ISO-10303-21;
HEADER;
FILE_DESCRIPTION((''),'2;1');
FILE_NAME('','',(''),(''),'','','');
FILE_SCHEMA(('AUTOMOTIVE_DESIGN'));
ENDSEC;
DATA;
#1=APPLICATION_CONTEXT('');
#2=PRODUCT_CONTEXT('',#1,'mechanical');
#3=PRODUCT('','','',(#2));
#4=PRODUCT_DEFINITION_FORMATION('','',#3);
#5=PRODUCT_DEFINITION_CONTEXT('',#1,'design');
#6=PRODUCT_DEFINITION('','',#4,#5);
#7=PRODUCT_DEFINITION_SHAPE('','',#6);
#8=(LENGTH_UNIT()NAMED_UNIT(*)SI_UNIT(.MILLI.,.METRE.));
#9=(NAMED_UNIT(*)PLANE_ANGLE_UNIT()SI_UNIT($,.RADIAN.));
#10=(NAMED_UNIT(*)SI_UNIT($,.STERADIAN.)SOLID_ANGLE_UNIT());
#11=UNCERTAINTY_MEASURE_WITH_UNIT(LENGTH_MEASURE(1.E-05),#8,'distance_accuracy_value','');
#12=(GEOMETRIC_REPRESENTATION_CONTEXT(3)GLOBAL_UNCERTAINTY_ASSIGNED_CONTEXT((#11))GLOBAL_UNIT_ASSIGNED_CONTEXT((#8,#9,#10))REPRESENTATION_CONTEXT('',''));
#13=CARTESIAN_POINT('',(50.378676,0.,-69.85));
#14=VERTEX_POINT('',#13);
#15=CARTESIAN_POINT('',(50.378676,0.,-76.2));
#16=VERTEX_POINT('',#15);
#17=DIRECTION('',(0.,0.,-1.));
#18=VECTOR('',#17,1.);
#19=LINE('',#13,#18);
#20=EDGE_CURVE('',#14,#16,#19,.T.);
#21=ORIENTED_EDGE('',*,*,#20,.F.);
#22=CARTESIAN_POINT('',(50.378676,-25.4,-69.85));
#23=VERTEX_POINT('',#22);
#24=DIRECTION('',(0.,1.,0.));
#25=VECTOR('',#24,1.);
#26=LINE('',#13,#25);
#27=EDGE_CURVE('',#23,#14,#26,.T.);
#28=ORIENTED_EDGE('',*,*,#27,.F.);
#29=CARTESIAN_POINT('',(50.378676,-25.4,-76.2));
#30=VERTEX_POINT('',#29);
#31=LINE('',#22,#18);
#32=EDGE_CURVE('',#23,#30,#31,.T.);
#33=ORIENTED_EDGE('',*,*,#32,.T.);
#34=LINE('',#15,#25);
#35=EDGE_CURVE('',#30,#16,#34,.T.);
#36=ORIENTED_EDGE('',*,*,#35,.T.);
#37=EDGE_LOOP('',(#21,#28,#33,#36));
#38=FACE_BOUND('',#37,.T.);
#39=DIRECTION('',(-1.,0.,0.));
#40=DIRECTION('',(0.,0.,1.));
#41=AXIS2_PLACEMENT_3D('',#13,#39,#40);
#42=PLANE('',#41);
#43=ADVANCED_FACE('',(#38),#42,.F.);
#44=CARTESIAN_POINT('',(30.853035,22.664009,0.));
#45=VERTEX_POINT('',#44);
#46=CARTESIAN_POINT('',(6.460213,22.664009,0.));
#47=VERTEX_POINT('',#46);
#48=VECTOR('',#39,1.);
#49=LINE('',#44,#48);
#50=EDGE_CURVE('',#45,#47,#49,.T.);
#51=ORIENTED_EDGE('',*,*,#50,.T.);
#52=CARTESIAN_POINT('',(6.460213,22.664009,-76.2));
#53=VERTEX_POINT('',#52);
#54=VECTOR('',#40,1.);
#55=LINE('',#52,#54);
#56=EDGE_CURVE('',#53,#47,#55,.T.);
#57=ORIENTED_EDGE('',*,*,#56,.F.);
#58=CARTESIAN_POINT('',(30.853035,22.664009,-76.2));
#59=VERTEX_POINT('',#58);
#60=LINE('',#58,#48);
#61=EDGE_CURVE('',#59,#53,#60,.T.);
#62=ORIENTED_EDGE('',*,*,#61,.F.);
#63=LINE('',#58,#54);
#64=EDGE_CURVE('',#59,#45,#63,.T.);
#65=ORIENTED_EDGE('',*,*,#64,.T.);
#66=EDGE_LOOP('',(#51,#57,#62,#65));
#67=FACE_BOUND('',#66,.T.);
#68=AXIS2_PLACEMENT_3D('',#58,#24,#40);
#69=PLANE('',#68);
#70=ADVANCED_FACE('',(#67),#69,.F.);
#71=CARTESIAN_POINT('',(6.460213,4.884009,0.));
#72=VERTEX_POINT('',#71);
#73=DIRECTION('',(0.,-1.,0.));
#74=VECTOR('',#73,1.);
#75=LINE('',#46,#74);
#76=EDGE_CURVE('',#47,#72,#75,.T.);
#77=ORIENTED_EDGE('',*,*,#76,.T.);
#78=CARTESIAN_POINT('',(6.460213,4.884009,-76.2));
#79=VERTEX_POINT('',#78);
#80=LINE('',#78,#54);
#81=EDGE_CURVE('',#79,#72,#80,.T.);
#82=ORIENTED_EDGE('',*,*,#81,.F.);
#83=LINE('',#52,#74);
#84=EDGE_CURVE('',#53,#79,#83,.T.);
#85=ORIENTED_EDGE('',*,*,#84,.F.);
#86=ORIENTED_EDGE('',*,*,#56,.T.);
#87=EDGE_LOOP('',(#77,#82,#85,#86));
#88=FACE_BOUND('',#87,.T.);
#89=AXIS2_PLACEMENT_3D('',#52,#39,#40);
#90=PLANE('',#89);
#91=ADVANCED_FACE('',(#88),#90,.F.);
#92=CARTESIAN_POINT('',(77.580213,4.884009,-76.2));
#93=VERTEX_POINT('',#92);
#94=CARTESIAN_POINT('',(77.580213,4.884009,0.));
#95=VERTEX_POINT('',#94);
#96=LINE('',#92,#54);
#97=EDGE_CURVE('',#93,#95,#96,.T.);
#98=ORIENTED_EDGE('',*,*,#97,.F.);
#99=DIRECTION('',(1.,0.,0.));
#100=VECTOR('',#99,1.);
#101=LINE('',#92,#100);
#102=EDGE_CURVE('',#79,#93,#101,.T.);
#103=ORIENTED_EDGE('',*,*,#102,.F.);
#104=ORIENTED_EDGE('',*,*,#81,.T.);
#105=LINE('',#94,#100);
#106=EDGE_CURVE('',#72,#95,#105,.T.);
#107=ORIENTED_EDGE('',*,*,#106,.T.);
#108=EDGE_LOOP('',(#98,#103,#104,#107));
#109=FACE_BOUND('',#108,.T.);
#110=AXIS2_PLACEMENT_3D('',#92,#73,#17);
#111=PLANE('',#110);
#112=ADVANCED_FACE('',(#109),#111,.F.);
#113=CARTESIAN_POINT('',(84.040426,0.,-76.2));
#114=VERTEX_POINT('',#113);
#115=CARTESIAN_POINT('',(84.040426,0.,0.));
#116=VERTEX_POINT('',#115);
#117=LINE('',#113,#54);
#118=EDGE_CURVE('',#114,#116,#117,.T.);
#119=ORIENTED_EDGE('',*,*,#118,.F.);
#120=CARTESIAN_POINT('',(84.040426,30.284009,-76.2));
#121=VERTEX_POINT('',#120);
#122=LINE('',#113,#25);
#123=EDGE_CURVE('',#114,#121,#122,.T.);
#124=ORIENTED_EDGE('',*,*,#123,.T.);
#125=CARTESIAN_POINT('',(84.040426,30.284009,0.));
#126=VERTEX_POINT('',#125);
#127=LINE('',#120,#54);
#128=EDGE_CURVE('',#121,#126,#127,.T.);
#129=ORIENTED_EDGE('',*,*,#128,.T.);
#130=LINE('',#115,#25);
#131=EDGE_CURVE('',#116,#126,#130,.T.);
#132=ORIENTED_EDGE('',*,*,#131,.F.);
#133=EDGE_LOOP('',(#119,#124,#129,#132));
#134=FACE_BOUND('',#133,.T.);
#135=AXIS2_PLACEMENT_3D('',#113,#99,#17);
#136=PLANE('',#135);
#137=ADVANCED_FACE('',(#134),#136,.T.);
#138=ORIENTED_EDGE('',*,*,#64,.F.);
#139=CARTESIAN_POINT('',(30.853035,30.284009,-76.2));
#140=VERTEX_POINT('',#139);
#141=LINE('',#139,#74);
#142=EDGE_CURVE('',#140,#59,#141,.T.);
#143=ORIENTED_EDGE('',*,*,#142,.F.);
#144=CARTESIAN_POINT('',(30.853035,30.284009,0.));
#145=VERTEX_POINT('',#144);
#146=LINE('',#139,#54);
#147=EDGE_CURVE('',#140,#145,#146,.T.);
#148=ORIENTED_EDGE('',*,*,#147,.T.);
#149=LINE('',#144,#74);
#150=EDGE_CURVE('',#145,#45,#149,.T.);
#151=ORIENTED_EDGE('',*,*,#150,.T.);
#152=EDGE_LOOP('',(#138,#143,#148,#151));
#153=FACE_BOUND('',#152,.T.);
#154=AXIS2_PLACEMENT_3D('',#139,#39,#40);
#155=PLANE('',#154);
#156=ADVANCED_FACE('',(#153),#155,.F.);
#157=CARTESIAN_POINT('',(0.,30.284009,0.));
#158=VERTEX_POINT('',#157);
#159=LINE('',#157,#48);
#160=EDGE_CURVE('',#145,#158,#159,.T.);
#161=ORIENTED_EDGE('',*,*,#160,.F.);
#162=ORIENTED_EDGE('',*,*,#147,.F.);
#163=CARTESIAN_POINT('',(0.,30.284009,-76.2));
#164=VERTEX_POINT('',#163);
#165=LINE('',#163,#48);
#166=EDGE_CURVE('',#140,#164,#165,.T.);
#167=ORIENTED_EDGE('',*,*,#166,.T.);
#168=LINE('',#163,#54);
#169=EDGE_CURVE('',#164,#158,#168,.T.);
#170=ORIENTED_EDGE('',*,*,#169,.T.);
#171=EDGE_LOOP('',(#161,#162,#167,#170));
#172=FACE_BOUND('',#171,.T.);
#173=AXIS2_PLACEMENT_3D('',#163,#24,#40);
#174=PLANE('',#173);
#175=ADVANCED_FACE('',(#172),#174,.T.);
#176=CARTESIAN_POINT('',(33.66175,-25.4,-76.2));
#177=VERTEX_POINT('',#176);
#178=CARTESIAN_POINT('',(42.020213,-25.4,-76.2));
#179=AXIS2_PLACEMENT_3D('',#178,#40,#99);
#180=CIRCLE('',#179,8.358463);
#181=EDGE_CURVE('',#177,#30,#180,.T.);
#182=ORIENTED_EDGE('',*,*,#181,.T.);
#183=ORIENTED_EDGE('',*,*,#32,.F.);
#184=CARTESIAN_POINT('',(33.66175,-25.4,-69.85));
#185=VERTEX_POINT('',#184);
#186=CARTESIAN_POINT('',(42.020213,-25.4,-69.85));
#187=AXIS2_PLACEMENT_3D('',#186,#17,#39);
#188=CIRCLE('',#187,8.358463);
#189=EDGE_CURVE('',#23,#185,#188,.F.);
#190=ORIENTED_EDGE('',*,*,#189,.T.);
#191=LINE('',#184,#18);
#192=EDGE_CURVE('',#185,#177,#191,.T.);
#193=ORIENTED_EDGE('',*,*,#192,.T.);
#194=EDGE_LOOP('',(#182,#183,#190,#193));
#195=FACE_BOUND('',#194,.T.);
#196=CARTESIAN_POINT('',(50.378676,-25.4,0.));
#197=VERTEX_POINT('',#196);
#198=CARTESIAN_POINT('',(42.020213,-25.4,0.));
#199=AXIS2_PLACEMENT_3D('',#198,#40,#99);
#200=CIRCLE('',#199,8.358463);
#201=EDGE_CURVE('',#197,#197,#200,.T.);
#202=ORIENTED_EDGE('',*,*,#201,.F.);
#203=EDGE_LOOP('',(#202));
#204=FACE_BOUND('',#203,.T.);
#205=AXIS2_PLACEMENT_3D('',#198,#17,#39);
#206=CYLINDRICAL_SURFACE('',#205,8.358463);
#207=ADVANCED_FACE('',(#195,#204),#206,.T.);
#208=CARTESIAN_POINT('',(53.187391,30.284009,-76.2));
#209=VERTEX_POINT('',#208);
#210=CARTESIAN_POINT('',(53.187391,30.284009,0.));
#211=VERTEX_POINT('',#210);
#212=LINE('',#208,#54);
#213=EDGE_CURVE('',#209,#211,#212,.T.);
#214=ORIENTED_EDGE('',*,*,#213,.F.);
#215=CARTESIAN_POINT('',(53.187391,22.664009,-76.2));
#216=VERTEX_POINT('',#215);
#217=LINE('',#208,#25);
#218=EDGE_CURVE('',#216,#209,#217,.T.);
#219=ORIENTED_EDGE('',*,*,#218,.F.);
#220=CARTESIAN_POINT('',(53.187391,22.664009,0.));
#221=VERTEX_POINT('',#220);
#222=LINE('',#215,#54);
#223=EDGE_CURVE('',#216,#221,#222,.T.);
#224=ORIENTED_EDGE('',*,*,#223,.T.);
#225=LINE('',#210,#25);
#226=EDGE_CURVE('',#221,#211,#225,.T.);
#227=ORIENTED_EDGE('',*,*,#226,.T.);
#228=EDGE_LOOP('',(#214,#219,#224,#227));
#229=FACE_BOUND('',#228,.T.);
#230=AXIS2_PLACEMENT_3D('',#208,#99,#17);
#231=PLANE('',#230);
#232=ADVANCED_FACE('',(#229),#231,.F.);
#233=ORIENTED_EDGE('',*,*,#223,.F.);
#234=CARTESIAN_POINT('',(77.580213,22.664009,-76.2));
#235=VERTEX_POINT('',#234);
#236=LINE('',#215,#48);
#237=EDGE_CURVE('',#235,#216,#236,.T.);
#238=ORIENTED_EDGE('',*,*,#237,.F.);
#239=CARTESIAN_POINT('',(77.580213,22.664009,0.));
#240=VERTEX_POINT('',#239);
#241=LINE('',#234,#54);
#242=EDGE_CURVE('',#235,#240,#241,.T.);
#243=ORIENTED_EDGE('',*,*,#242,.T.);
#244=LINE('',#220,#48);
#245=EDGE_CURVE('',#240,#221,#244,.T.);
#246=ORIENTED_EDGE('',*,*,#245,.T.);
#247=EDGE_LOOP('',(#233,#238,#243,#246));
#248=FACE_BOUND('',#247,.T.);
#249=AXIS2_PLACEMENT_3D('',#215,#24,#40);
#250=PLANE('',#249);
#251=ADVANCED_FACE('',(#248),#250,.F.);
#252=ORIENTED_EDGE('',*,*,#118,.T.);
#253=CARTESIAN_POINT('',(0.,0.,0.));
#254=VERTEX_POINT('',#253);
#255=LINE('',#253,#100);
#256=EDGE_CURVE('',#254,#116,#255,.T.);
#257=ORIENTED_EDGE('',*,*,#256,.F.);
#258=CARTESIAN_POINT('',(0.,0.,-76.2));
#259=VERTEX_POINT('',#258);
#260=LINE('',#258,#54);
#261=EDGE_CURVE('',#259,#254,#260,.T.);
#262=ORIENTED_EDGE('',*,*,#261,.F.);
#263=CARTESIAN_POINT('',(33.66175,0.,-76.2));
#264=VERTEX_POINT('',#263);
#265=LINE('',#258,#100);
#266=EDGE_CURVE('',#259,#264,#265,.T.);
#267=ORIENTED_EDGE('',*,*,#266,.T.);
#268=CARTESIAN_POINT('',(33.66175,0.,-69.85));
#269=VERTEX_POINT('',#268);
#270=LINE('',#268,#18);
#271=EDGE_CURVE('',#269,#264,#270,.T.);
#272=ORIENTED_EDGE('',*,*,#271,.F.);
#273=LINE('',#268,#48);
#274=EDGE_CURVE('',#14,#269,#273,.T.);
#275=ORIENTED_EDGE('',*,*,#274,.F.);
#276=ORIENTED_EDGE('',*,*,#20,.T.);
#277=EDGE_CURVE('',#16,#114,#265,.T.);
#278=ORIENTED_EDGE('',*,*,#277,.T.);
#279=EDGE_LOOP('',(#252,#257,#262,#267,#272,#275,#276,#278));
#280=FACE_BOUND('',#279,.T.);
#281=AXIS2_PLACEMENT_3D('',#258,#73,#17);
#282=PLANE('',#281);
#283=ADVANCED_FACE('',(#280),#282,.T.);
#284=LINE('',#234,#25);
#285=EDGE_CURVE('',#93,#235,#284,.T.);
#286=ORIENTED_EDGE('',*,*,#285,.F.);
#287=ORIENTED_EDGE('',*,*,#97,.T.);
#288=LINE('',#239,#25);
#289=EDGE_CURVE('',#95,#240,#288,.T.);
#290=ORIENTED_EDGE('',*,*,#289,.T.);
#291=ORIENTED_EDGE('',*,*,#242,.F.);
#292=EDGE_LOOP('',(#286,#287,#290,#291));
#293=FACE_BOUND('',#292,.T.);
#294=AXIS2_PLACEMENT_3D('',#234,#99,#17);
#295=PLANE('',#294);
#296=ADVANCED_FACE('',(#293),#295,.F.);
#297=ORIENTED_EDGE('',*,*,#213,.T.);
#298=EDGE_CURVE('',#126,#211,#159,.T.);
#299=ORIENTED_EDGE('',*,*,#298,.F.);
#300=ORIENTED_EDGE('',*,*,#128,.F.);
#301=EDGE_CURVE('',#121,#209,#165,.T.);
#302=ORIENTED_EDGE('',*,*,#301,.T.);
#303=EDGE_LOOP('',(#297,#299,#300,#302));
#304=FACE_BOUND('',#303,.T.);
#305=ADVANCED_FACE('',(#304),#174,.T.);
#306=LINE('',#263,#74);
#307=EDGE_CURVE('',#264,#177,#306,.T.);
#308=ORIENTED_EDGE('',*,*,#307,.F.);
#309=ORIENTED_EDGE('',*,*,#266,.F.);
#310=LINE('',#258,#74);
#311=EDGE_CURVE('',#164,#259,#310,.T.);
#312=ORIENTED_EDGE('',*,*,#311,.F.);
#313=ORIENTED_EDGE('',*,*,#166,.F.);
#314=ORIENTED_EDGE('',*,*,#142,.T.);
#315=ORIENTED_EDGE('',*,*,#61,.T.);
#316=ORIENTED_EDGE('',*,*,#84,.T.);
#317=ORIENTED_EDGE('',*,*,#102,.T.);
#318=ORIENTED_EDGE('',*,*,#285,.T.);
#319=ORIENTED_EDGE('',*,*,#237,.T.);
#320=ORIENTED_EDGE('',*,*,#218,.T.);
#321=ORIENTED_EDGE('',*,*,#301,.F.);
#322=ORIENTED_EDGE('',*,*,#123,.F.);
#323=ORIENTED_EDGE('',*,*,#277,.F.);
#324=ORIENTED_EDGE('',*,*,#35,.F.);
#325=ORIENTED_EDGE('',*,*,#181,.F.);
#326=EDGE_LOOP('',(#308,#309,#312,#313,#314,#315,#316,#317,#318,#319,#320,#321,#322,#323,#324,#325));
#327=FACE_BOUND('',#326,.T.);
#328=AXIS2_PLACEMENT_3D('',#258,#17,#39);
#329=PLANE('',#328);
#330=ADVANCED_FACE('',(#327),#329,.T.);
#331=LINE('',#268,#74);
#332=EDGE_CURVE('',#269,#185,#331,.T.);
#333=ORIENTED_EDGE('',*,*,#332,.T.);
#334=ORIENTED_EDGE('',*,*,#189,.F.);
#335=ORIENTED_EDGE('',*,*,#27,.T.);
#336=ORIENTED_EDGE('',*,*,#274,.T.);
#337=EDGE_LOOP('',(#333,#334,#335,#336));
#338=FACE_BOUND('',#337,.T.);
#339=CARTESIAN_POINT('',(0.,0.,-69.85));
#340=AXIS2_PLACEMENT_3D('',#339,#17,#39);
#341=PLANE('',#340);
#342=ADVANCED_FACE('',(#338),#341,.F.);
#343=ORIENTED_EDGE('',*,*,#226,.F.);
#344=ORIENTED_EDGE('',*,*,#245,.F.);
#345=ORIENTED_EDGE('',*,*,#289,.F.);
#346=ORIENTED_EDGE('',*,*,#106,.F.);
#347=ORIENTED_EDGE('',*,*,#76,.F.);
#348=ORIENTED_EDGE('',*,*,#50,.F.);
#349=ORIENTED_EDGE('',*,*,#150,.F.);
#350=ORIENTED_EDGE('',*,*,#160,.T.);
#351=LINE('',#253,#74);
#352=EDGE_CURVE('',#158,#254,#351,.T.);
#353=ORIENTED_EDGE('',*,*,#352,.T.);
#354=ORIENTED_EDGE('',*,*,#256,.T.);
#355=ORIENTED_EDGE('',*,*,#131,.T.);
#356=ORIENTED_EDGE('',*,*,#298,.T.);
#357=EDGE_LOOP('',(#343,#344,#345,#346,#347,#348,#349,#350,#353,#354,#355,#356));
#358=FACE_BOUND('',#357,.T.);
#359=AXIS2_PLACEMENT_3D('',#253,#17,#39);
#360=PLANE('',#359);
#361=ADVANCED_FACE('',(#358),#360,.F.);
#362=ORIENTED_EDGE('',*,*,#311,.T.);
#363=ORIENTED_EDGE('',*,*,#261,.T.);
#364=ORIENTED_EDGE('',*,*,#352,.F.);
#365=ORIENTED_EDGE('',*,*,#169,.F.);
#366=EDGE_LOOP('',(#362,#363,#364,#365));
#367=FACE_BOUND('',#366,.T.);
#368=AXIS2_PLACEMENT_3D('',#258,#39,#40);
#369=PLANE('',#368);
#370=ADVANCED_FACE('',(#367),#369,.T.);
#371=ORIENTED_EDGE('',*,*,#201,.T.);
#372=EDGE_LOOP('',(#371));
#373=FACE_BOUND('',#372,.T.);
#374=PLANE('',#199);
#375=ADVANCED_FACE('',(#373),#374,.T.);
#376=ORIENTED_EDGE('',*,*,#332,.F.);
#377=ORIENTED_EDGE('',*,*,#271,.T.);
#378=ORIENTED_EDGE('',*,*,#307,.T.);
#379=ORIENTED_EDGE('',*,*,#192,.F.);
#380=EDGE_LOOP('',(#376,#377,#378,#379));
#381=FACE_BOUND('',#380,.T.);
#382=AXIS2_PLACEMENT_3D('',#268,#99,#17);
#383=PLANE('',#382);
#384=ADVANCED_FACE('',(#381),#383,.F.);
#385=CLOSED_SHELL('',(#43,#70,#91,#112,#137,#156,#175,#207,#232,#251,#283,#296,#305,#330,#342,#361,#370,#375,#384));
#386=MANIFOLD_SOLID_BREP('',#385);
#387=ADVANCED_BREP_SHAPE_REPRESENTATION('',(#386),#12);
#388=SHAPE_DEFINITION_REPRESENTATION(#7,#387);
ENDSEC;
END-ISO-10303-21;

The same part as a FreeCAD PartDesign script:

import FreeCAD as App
import Part
import Sketcher

V = App.Vector
Q = App.Units.Quantity

doc = App.newDocument("Part")
params = doc.addObject("Spreadsheet::Sheet", "Params")
for row, (alias, value) in enumerate([
    ("pad1_length", "3 in"),
    ("sketch2_width", "2.8 in"),
    ("sketch2_height", "0.3 in"),
    ("sketch2_height2", "0.7 in"),
    ("sketch3_height", "1 in"),
    ("pad2_length", "0.25 in"),
    ("pad3_length", "3 in"),
], start=1):
    params.set(f"A{row}", alias)
    params.set(f"B{row}", "=" + value)
    params.setAlias(f"B{row}", alias)

body = doc.addObject("PartDesign::Body", "Body")

# Sketch on XY plane
sketch1 = body.newObject("Sketcher::SketchObject", "Sketch")
sketch1.AttachmentSupport = (doc.getObject("XY_Plane"), [""])
sketch1.MapMode = "FlatFace"
sketch1.addGeometry([
    Part.LineSegment(V(0, 30, 0), V(0, 0, 0)),
    Part.LineSegment(V(0, 0, 0), V(84, 0, 0)),
    Part.LineSegment(V(84, 0, 0), V(84, 30, 0)),
    Part.LineSegment(V(84, 30, 0), V(0, 30, 0)),
], False)
sketch1.addConstraint([
    Sketcher.Constraint("Coincident", 0, 2, 1, 1),
    Sketcher.Constraint("Coincident", 1, 2, 2, 1),
    Sketcher.Constraint("Coincident", 2, 2, 3, 1),
    Sketcher.Constraint("Coincident", 3, 2, 0, 1),
    Sketcher.Constraint("Vertical", 0),
    Sketcher.Constraint("Horizontal", 1),
    Sketcher.Constraint("Vertical", 2),
    Sketcher.Constraint("Horizontal", 3),
    Sketcher.Constraint("Coincident", 0, 2, -1, 1),
    Sketcher.Constraint("DistanceY", 0, 2, 0, 1, 30.284009),
    Sketcher.Constraint("DistanceX", 1, 1, 1, 2, 84.040426),
])
pad1 = body.newObject("PartDesign::Pad", "Pad")
pad1.Profile = sketch1
pad1.setExpression("Length", "Params.pad1_length")
pad1.Reversed = True

# Sketch on XY plane
sketch2 = body.newObject("Sketcher::SketchObject", "Sketch001")
sketch2.AttachmentSupport = (doc.getObject("XY_Plane"), [""])
sketch2.MapMode = "FlatFace"
sketch2.addGeometry([
    Part.LineSegment(V(53, 30, 0), V(31, 30, 0)),  # 0
    Part.LineSegment(V(31, 30, 0), V(31, 23, 0)),  # 1
    Part.LineSegment(V(31, 23, 0), V(6, 23, 0)),  # 2
    Part.LineSegment(V(6, 23, 0), V(6, 5, 0)),  # 3
    Part.LineSegment(V(6, 5, 0), V(78, 5, 0)),  # 4
    Part.LineSegment(V(78, 5, 0), V(78, 23, 0)),  # 5
    Part.LineSegment(V(78, 23, 0), V(53, 23, 0)),  # 6
    Part.LineSegment(V(53, 23, 0), V(53, 30, 0)),  # 7
], False)
sketch2.addConstraint([
    Sketcher.Constraint("Coincident", 0, 2, 1, 1),
    Sketcher.Constraint("Coincident", 1, 2, 2, 1),
    Sketcher.Constraint("Coincident", 2, 2, 3, 1),
    Sketcher.Constraint("Coincident", 3, 2, 4, 1),
    Sketcher.Constraint("Coincident", 4, 2, 5, 1),
    Sketcher.Constraint("Coincident", 5, 2, 6, 1),
    Sketcher.Constraint("Coincident", 6, 2, 7, 1),
    Sketcher.Constraint("Coincident", 7, 2, 0, 1),
    Sketcher.Constraint("Horizontal", 0),
    Sketcher.Constraint("Vertical", 1),
    Sketcher.Constraint("Horizontal", 2),
    Sketcher.Constraint("Vertical", 3),
    Sketcher.Constraint("Horizontal", 4),
    Sketcher.Constraint("Vertical", 5),
    Sketcher.Constraint("Horizontal", 6),
    Sketcher.Constraint("Vertical", 7),
    Sketcher.Constraint("Horizontal", 2, 2, 5, 2),
    Sketcher.Constraint("Equal", 2, 6),
    Sketcher.Constraint("DistanceX", 4, 1, 4, 2, Q("2.8 in")),
    Sketcher.Constraint("DistanceY", 1, 2, 1, 1, Q("0.3 in")),
    Sketcher.Constraint("DistanceY", 3, 2, 3, 1, Q("0.7 in")),
    Sketcher.Constraint("DistanceX", 0, 2, 0, 1, 22.334355),
    Sketcher.Constraint("DistanceY", -1, 1, 0, 2, 30.284009),
    Sketcher.Constraint("DistanceX", -1, 1, 6, 2, 53.187391),
])
sketch2.setExpression("Constraints[18]", "Params.sketch2_width")
sketch2.setExpression("Constraints[19]", "Params.sketch2_height")
sketch2.setExpression("Constraints[20]", "Params.sketch2_height2")
pocket1 = body.newObject("PartDesign::Pocket", "Pocket")
pocket1.Profile = sketch2
pocket1.Type = "ThroughAll"

# Sketch on XY plane
sketch3 = body.newObject("Sketcher::SketchObject", "Sketch002")
sketch3.AttachmentSupport = (doc.getObject("XY_Plane"), [""])
sketch3.MapMode = "FlatFace"
sketch3.AttachmentOffset = App.Placement(V(0, 0, -3 * 25.4), App.Rotation())
sketch3.addGeometry([
    Part.LineSegment(V(34, 0, 0), V(34, -25, 0)),
    Part.LineSegment(V(34, -25, 0), V(50, -25, 0)),
    Part.LineSegment(V(50, -25, 0), V(50, 0, 0)),
    Part.LineSegment(V(50, 0, 0), V(34, 0, 0)),
], False)
sketch3.addConstraint([
    Sketcher.Constraint("Coincident", 0, 2, 1, 1),
    Sketcher.Constraint("Coincident", 1, 2, 2, 1),
    Sketcher.Constraint("Coincident", 2, 2, 3, 1),
    Sketcher.Constraint("Coincident", 3, 2, 0, 1),
    Sketcher.Constraint("Vertical", 0),
    Sketcher.Constraint("Horizontal", 1),
    Sketcher.Constraint("Vertical", 2),
    Sketcher.Constraint("Horizontal", 3),
    Sketcher.Constraint("PointOnObject", 2, 2, -1),
    Sketcher.Constraint("DistanceY", 0, 2, 0, 1, Q("1 in")),
    Sketcher.Constraint("DistanceX", 1, 1, 1, 2, 16.716927),
    Sketcher.Constraint("DistanceX", -1, 1, 0, 2, 33.66175),
])
sketch3.setExpression("Constraints[9]", "Params.sketch3_height")
pad2 = body.newObject("PartDesign::Pad", "Pad001")
pad2.Profile = sketch3
pad2.setExpression("Length", "Params.pad2_length")

# Sketch on XY plane
sketch4 = body.newObject("Sketcher::SketchObject", "Sketch003")
sketch4.AttachmentSupport = (doc.getObject("XY_Plane"), [""])
sketch4.MapMode = "FlatFace"
sketch4.AttachmentOffset = App.Placement(V(0, 0, -3 * 25.4), App.Rotation())
sketch4.addGeometry(Part.Circle(V(42, -25, 0), V(0, 0, 1), 8), False)
sketch4.addConstraint([
    Sketcher.Constraint("DistanceY", 0, 3, -1, 1, Q("1 in")),
    Sketcher.Constraint("Diameter", 0, 16.716927),
    Sketcher.Constraint("DistanceX", -1, 1, 0, 3, 42.020213),
])
pad3 = body.newObject("PartDesign::Pad", "Pad002")
pad3.Profile = sketch4
pad3.setExpression("Length", "Params.pad3_length")

doc.recompute()
